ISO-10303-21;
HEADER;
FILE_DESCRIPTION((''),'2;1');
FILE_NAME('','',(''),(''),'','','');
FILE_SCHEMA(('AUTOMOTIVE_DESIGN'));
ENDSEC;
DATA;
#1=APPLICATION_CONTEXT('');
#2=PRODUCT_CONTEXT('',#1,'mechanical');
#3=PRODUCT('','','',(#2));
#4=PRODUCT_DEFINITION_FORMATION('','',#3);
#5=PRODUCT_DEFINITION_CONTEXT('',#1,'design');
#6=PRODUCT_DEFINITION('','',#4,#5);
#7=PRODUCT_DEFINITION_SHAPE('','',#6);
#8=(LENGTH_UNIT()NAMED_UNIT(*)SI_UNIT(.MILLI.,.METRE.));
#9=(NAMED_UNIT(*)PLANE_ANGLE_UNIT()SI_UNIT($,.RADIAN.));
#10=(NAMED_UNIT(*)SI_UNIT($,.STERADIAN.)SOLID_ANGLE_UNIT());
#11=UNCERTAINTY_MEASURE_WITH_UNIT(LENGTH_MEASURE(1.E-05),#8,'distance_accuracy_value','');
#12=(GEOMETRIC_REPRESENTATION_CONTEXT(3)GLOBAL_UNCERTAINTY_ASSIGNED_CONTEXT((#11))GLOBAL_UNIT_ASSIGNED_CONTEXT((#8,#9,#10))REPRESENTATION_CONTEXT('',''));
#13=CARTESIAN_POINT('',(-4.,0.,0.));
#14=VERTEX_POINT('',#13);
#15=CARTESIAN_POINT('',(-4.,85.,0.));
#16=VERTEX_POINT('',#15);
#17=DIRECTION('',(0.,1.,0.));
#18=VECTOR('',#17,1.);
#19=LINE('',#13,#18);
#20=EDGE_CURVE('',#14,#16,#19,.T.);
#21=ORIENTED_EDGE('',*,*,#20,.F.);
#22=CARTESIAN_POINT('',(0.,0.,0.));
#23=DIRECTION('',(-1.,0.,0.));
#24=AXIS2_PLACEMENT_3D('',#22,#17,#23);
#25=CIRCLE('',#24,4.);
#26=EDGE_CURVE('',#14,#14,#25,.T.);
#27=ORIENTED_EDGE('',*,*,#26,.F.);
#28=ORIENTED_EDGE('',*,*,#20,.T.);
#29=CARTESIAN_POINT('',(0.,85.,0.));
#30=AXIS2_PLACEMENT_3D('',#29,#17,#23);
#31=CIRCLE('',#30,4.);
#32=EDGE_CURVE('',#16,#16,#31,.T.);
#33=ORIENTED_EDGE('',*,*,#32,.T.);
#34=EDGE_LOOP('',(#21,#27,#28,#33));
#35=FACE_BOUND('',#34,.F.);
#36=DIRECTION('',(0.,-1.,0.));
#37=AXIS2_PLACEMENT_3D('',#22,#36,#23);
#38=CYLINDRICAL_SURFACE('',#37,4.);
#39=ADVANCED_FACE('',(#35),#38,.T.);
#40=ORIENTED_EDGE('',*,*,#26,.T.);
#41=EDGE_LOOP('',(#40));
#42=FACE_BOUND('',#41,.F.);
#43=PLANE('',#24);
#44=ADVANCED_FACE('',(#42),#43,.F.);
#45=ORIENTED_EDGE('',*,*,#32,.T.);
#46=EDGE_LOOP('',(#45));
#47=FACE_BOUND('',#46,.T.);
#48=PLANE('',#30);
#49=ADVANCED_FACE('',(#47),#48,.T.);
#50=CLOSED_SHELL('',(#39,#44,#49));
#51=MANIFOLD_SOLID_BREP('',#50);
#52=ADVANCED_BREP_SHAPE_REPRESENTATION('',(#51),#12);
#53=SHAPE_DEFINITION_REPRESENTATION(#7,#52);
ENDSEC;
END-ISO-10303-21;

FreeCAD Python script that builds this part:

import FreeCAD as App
import Part
import Sketcher
from FreeCAD import Vector

doc = App.newDocument("Part")
body = doc.addObject("PartDesign::Body", "Body")

# Sketch on XZ plane
sketch1 = body.newObject("Sketcher::SketchObject", "Sketch")
sketch1.AttachmentSupport = (doc.getObject("XZ_Plane"), [""])
sketch1.MapMode = "FlatFace"
sketch1.addGeometry(Part.Circle(Vector(0, 0, 0), Vector(0, 0, 1), 4), False)
sketch1.addConstraint(Sketcher.Constraint("Coincident", 0, 3, -1, 1))
sketch1.addConstraint(Sketcher.Constraint("Diameter", 0, 8.0))
pad1 = body.newObject("PartDesign::Pad", "Pad")
pad1.Profile = sketch1
pad1.Length = 85
pad1.Reversed = True

doc.recompute()
